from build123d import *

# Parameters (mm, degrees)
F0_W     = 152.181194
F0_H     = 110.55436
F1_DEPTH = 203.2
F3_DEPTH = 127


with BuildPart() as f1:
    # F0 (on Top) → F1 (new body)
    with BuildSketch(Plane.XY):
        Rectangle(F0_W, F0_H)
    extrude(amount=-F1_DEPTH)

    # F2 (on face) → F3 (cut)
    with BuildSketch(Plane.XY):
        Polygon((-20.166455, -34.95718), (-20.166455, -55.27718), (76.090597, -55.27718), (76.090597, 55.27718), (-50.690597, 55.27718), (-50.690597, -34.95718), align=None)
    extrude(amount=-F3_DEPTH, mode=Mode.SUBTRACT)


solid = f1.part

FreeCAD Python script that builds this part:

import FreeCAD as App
import Part
import Sketcher
from FreeCAD import Vector
Q = App.Units.Quantity


def add_polygon(sketch, points):
    """Adds a closed chain of lines whose ends are joined by coincident constraints."""
    first, n = sketch.GeometryCount, len(points)
    for a, b in zip(points, points[1:] + points[:1]):
        sketch.addGeometry(Part.LineSegment(App.Vector(*a, 0), App.Vector(*b, 0)), False)
    for i in range(n):
        sketch.addConstraint(Sketcher.Constraint("Coincident", first + i, 2, first + (i + 1) % n, 1))

doc = App.newDocument("Part")
body = doc.addObject("PartDesign::Body", "Body")

sketch1 = body.newObject("Sketcher::SketchObject", "Sketch")
sketch1.AttachmentSupport = (doc.getObject("XY_Plane"), [""])
sketch1.MapMode = "FlatFace"
add_polygon(sketch1, [(-76, 55), (-76, -55), (76, -55), (76, 55)])
sketch1.addConstraint(Sketcher.Constraint("Vertical", 0))
sketch1.addConstraint(Sketcher.Constraint("Horizontal", 1))
sketch1.addConstraint(Sketcher.Constraint("Vertical", 2))
sketch1.addConstraint(Sketcher.Constraint("Horizontal", 3))
sketch1.addConstraint(Sketcher.Constraint("Symmetric", 0, 2, 2, 2, -1, 1))
sketch1.addConstraint(Sketcher.Constraint("DistanceY", 0, 2, 0, 1, Q("110.55436 mm")))
sketch1.addConstraint(Sketcher.Constraint("DistanceX", 1, 1, 1, 2, Q("152.181194 mm")))
pad1 = body.newObject("PartDesign::Pad", "Pad")
pad1.Profile = sketch1
pad1.Length = Q("8 in")
pad1.Reversed = True

sketch2 = body.newObject("Sketcher::SketchObject", "Sketch001")
sketch2.AttachmentSupport = (doc.getObject("XY_Plane"), [""])
sketch2.MapMode = "FlatFace"
add_polygon(sketch2, [(-20, -35), (-20, -55), (76, -55), (76, 55), (-51, 55), (-51, -35)])
sketch2.addConstraint(Sketcher.Constraint("Vertical", 0))
sketch2.addConstraint(Sketcher.Constraint("Horizontal", 1))
sketch2.addConstraint(Sketcher.Constraint("Vertical", 2))
sketch2.addConstraint(Sketcher.Constraint("Horizontal", 3))
sketch2.addConstraint(Sketcher.Constraint("Vertical", 4))
sketch2.addConstraint(Sketcher.Constraint("Horizontal", 5))
sketch2.addConstraint(Sketcher.Constraint("DistanceY", 0, 2, 0, 1, Q("0.8 in")))
sketch2.addConstraint(Sketcher.Constraint("DistanceX", 1, 1, 1, 2, Q("96.257052 mm")))
sketch2.addConstraint(Sketcher.Constraint("DistanceX", 5, 1, 5, 2, Q("30.524142 mm")))
sketch2.addConstraint(Sketcher.Constraint("DistanceY", 2, 1, 2, 2, Q("110.55436 mm")))
sketch2.addConstraint(Sketcher.Constraint("DistanceY", 0, 2, -1, 1, Q("55.27718 mm")))
sketch2.addConstraint(Sketcher.Constraint("DistanceX", 0, 2, -1, 1, Q("20.166455 mm")))
pocket1 = body.newObject("PartDesign::Pocket", "Pocket")
pocket1.Profile = sketch2
pocket1.Length = Q("5 in")

doc.recompute()
